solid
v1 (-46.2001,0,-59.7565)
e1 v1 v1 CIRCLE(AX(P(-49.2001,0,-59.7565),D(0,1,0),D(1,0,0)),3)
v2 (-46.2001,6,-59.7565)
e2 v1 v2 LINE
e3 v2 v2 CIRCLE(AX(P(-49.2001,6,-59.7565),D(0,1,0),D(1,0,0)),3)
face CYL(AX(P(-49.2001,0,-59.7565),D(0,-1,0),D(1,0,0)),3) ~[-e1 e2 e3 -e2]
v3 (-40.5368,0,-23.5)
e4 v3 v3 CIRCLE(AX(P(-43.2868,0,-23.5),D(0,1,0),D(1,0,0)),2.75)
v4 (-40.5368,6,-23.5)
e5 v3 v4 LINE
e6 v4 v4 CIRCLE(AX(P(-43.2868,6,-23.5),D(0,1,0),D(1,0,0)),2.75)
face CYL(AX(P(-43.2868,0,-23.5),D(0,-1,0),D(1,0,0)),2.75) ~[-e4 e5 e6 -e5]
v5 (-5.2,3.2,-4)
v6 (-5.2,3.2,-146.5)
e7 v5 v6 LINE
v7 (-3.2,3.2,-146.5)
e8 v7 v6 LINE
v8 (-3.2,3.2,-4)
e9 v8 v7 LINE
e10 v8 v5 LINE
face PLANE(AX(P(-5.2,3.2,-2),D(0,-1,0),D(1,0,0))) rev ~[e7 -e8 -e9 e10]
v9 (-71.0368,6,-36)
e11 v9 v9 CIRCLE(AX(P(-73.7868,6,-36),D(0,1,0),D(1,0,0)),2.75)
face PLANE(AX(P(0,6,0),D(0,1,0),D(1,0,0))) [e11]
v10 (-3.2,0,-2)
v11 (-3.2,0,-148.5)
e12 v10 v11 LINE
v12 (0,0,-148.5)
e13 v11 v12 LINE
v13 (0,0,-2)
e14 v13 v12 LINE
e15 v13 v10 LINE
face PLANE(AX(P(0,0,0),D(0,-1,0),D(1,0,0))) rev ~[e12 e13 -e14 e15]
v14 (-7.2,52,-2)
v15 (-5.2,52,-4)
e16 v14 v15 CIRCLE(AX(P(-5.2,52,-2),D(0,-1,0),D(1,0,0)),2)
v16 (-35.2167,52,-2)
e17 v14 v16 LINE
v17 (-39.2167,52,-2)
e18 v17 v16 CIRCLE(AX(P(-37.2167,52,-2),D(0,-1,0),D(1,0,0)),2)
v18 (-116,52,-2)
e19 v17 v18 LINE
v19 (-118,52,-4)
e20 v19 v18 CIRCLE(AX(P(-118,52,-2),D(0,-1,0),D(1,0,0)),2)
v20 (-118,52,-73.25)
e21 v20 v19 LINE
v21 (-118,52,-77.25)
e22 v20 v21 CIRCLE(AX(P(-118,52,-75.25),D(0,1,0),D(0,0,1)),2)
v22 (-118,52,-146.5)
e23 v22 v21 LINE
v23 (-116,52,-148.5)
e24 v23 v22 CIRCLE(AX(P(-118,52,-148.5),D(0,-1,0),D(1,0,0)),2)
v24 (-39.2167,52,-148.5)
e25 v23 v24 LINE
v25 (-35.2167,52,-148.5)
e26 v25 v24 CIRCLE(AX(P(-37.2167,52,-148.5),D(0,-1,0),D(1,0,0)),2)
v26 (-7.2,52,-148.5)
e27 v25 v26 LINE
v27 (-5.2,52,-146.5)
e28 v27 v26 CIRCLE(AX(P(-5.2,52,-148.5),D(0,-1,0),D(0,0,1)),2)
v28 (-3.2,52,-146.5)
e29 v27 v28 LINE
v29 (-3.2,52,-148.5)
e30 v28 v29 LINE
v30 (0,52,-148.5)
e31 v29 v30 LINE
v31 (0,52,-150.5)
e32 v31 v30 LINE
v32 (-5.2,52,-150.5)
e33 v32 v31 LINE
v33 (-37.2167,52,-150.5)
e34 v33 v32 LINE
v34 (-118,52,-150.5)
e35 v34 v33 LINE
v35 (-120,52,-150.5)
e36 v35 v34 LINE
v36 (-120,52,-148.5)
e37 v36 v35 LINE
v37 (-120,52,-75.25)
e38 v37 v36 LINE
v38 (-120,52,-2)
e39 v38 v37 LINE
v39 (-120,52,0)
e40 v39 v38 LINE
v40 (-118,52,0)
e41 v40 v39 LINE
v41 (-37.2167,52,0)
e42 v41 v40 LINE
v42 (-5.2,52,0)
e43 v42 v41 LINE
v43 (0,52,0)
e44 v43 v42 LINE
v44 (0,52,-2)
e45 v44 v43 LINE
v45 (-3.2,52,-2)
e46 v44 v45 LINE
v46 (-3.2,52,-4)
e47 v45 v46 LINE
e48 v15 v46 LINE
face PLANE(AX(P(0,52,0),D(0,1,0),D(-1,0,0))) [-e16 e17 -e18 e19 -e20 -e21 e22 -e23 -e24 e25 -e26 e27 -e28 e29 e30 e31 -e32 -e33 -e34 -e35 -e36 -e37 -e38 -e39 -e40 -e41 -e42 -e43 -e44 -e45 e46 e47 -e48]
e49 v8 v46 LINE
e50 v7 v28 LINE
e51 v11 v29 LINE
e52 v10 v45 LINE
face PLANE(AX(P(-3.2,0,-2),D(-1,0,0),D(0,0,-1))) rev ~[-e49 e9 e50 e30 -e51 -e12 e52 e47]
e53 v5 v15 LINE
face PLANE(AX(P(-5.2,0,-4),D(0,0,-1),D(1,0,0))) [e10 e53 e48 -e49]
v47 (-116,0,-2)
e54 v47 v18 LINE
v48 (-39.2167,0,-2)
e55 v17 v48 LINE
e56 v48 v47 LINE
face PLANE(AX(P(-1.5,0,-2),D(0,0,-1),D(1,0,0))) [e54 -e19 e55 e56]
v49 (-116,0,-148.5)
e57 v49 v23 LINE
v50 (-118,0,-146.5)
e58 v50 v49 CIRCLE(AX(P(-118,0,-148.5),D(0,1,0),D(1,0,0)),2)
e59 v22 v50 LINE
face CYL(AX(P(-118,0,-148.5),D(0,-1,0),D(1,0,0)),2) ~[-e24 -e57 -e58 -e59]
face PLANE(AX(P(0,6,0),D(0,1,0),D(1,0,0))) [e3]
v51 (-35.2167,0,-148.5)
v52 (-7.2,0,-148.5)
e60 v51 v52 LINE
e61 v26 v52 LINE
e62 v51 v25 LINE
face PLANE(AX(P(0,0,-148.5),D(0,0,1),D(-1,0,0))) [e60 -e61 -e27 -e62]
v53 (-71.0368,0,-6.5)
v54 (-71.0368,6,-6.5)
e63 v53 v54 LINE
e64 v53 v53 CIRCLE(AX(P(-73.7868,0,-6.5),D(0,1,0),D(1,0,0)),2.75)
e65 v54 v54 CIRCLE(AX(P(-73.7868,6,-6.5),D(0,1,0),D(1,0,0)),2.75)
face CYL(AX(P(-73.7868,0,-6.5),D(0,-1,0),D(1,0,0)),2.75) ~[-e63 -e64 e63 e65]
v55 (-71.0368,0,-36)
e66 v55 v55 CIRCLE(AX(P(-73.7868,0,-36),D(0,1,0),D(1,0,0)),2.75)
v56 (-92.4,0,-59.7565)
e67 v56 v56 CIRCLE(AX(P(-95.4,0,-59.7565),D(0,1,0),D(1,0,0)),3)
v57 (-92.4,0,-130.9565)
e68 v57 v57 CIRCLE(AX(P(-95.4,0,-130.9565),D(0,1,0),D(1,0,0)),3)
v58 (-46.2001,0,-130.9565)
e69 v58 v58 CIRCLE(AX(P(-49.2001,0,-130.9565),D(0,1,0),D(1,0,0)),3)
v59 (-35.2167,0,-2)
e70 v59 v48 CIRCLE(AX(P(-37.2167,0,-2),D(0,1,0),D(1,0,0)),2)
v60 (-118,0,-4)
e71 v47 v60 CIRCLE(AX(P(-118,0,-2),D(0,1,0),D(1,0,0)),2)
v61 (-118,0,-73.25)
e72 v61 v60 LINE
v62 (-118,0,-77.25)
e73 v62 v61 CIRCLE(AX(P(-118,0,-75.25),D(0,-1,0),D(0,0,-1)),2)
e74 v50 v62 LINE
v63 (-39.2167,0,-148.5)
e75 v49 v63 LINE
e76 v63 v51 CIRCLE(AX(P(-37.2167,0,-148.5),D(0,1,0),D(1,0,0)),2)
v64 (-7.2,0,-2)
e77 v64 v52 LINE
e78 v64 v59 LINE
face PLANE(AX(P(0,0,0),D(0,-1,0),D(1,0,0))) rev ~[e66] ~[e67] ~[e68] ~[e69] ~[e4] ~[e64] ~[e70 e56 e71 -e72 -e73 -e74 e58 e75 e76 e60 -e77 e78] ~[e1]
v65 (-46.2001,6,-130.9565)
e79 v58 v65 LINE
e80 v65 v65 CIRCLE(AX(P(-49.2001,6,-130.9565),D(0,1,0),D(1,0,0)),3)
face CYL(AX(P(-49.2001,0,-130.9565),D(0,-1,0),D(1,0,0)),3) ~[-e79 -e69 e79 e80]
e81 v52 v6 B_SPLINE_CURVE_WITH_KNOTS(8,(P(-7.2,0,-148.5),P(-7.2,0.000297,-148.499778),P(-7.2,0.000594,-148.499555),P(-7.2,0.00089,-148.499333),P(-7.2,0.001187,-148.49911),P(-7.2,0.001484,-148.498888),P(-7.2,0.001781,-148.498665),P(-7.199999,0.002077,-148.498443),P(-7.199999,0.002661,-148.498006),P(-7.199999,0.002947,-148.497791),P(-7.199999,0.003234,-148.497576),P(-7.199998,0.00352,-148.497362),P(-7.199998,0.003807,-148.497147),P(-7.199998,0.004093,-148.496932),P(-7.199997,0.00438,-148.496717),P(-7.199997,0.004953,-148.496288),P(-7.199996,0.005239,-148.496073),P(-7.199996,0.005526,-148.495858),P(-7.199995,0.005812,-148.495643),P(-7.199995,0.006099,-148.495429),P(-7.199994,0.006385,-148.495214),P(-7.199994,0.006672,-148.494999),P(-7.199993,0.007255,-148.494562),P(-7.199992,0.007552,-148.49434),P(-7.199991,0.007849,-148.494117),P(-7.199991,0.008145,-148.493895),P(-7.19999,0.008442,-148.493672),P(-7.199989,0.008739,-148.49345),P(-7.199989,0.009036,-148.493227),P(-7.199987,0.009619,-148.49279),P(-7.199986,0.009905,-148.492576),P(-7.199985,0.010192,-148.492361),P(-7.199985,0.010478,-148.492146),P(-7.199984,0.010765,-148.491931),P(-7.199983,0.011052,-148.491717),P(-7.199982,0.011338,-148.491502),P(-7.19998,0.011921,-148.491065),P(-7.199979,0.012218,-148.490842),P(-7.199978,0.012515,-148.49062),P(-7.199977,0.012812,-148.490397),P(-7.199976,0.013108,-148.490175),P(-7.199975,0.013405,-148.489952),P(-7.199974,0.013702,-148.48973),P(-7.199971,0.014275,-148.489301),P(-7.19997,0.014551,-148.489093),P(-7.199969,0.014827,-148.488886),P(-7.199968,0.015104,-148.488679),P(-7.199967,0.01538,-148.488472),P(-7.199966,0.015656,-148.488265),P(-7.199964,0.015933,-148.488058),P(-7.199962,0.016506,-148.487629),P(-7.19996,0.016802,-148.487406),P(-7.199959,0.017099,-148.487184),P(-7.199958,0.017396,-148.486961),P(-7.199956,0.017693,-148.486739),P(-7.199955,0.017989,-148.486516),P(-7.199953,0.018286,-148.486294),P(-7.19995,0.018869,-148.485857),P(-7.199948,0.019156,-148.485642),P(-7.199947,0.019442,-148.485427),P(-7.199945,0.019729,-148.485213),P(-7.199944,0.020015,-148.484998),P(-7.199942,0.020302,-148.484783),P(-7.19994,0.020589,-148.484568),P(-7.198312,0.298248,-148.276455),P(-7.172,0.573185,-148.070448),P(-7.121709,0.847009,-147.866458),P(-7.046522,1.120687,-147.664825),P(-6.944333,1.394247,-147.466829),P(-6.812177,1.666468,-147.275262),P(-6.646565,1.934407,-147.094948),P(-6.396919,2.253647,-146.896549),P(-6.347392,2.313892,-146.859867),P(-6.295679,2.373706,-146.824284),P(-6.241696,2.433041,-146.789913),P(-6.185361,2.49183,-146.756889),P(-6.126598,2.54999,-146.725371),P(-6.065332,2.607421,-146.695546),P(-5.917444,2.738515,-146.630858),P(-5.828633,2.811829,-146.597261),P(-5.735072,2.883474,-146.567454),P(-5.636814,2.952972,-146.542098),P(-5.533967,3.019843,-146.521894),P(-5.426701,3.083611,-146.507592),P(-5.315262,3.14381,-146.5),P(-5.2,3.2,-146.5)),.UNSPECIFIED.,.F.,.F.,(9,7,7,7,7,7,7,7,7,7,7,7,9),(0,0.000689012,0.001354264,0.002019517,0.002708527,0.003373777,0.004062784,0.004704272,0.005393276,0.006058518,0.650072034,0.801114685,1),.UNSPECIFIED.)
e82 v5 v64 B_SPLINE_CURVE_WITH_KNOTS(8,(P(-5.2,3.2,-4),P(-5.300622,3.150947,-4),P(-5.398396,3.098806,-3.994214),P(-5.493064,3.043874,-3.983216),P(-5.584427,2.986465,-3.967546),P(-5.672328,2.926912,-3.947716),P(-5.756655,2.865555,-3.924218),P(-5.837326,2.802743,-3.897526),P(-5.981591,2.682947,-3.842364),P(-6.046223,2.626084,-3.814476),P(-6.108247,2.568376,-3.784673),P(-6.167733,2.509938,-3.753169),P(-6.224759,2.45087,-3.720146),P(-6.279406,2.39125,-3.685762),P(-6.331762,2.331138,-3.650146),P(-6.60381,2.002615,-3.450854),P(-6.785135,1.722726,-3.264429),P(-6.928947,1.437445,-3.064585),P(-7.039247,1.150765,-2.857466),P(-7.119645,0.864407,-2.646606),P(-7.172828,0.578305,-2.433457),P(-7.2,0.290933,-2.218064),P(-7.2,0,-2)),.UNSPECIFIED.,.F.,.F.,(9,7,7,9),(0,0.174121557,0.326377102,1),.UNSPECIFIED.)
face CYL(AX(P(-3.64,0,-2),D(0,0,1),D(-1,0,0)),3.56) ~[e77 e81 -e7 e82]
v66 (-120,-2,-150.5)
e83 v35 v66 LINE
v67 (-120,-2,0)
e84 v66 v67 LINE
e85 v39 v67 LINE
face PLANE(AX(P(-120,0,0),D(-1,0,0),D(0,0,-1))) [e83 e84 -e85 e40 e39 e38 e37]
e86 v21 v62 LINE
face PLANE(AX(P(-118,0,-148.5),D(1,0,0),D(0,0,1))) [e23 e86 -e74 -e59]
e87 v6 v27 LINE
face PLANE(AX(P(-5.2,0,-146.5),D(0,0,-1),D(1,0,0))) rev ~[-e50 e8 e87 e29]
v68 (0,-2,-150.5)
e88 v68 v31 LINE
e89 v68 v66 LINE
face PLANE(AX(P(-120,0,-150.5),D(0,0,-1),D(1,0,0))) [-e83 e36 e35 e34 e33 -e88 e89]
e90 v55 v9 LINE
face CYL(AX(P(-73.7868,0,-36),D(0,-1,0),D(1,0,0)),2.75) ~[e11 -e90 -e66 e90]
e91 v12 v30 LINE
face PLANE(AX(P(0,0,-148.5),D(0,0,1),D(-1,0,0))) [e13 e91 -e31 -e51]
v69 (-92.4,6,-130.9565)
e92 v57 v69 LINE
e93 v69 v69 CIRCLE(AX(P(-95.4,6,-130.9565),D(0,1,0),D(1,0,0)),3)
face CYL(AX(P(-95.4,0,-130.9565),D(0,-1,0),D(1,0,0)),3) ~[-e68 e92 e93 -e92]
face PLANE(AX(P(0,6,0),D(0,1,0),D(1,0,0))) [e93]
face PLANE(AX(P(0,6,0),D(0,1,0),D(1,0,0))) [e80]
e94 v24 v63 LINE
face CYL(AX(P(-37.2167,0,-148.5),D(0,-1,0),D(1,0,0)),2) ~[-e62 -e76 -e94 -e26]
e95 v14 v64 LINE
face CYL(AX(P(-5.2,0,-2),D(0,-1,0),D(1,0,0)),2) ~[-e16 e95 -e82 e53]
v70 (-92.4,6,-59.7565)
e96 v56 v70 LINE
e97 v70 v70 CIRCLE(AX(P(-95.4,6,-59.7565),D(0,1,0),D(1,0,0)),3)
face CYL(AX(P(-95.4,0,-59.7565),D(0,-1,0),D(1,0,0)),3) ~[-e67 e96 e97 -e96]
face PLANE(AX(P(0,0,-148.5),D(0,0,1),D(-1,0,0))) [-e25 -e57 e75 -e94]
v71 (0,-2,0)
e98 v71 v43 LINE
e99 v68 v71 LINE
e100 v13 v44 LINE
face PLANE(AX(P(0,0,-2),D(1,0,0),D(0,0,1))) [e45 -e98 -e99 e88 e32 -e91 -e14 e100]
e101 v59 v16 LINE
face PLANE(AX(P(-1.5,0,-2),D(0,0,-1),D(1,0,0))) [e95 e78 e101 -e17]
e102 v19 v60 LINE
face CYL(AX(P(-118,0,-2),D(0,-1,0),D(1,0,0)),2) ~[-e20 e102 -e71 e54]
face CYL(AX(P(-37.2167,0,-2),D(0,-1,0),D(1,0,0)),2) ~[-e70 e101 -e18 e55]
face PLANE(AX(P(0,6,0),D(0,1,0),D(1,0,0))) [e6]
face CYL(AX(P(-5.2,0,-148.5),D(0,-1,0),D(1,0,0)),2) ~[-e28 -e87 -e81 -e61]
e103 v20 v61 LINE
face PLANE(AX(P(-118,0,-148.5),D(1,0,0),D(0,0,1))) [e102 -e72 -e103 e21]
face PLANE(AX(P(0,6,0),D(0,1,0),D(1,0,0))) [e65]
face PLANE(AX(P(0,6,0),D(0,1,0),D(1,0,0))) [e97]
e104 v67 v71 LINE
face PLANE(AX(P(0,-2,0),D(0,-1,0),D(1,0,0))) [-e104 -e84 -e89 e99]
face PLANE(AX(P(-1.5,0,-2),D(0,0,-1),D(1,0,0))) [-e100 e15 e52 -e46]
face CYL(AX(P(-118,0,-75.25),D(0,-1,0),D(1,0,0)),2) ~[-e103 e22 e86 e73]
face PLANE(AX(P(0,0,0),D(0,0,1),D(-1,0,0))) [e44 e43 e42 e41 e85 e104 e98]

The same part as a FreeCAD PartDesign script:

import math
import FreeCAD as App
import Part
import Sketcher
from FreeCAD import Vector
Q = App.Units.Quantity


def add_polygon(sketch, points):
    """Adds a closed chain of lines whose ends are joined by coincident constraints."""
    first, n = sketch.GeometryCount, len(points)
    for a, b in zip(points, points[1:] + points[:1]):
        sketch.addGeometry(Part.LineSegment(App.Vector(*a, 0), App.Vector(*b, 0)), False)
    for i in range(n):
        sketch.addConstraint(Sketcher.Constraint("Coincident", first + i, 2, first + (i + 1) % n, 1))

doc = App.newDocument("Part")
body = doc.addObject("PartDesign::Body", "Body")

# Sketch on XZ plane
sketch1 = body.newObject("Sketcher::SketchObject", "Sketch")
sketch1.AttachmentSupport = (doc.getObject("XZ_Plane"), [""])
sketch1.MapMode = "FlatFace"
add_polygon(sketch1, [(-120, 0), (0, 0), (0, -2), (-118, -2), (-118, -148.5), (0, -148.5), (0, -150.5), (-120, -150.5)])  # lines 0-7
sketch1.addConstraint([
    Sketcher.Constraint("Horizontal", 0),
    Sketcher.Constraint("Vertical", 1),
    Sketcher.Constraint("Horizontal", 2),
    Sketcher.Constraint("Vertical", 3),
    Sketcher.Constraint("Horizontal", 4),
    Sketcher.Constraint("Vertical", 5),
    Sketcher.Constraint("Horizontal", 6),
    Sketcher.Constraint("Vertical", 7),
    Sketcher.Constraint("Coincident", 0, 2, -1, 1),
    Sketcher.Constraint("PointOnObject", 4, 2, -2),
    Sketcher.Constraint("Equal", 1, 5),
    Sketcher.Constraint("DistanceX", 0, 1, 0, 2, Q("120 mm")),
    Sketcher.Constraint("DistanceY", 1, 2, 1, 1, Q("2 mm")),
    Sketcher.Constraint("DistanceY", 7, 1, 7, 2, Q("150.5 mm")),
    Sketcher.Constraint("DistanceX", 6, 2, 3, 2, Q("2 mm")),
])
pad1 = body.newObject("PartDesign::Pad", "Pad")
pad1.Profile = sketch1
pad1.Length = 52
pad1.Reversed = True

# Sketch on XZ plane
sketch2 = body.newObject("Sketcher::SketchObject", "Sketch001")
sketch2.AttachmentSupport = (doc.getObject("XZ_Plane"), [""])
sketch2.MapMode = "FlatFace"
add_polygon(sketch2, [(-120, 0), (-120, -150.5), (0, -150.5), (0, 0)])  # lines 0-3
sketch2.addConstraint([
    Sketcher.Constraint("Vertical", 0),
    Sketcher.Constraint("Horizontal", 1),
    Sketcher.Constraint("Vertical", 2),
    Sketcher.Constraint("Horizontal", 3),
    Sketcher.Constraint("Coincident", 2, 2, -1, 1),
    Sketcher.Constraint("DistanceX", 1, 1, 1, 2, Q("120 mm")),
    Sketcher.Constraint("DistanceY", 0, 2, 0, 1, Q("150.5 mm")),
])
pad2 = body.newObject("PartDesign::Pad", "Pad001")
pad2.Profile = sketch2
pad2.Length = 2

# Sketch on XZ plane
sketch3 = body.newObject("Sketcher::SketchObject", "Sketch002")
sketch3.AttachmentSupport = (doc.getObject("XZ_Plane"), [""])
sketch3.MapMode = "FlatFace"
sketch3.addGeometry([
    Part.LineSegment(Vector(-3.2, -2, 0), Vector(-3.2, -4, 0)),  # 0
    Part.LineSegment(Vector(-3.2, -4, 0), Vector(-5.2, -4, 0)),  # 1
    Part.ArcOfCircle(Part.Circle(Vector(-5.2, -2, 0), Vector(0, 0, 1), 2), math.radians(0), math.radians(270)),  # 2
    Part.LineSegment(Vector(-5.2, -146.5, 0), Vector(-3.2, -146.5, 0)),  # 3
    Part.LineSegment(Vector(-3.2, -146.5, 0), Vector(-3.2, -148.5, 0)),  # 4
    Part.ArcOfCircle(Part.Circle(Vector(-5.2, -148.5, 0), Vector(0, 0, 1), 2), math.radians(90), math.radians(360)),  # 5
    Part.Circle(Vector(-37.2167, -2, 0), Vector(0, 0, 1), 2),  # 6
    Part.Circle(Vector(-118, -2, 0), Vector(0, 0, 1), 2),  # 7
    Part.Circle(Vector(-37.2167, -148.5, 0), Vector(0, 0, 1), 2),  # 8
    Part.Circle(Vector(-118, -148.5, 0), Vector(0, 0, 1), 2),  # 9
    Part.Circle(Vector(-118, -75.25, 0), Vector(0, 0, 1), 2),  # 10
], False)
sketch3.addConstraint([
    Sketcher.Constraint("Coincident", 0, 2, 1, 1),
    Sketcher.Constraint("Tangent", 1, 2, 2, 2),
    Sketcher.Constraint("Tangent", 2, 1, 0, 1),
    Sketcher.Constraint("Coincident", 3, 2, 4, 1),
    Sketcher.Constraint("Tangent", 4, 2, 5, 2),
    Sketcher.Constraint("Tangent", 5, 1, 3, 1),
    Sketcher.Constraint("Vertical", 0),
    Sketcher.Constraint("Horizontal", 1),
    Sketcher.Constraint("Horizontal", 3),
    Sketcher.Constraint("Vertical", 4),
    Sketcher.Constraint("Equal", 2, 5),
    Sketcher.Constraint("Equal", 5, 6),
    Sketcher.Constraint("Equal", 6, 7),
    Sketcher.Constraint("Equal", 7, 8),
    Sketcher.Constraint("Equal", 8, 9),
    Sketcher.Constraint("Equal", 9, 10),
    Sketcher.Constraint("Horizontal", 2, 3, 6, 3),
    Sketcher.Constraint("Horizontal", 6, 3, 7, 3),
    Sketcher.Constraint("Horizontal", 5, 3, 8, 3),
    Sketcher.Constraint("Horizontal", 8, 3, 9, 3),
    Sketcher.Constraint("Vertical", 2, 3, 5, 3),
    Sketcher.Constraint("Vertical", 6, 3, 8, 3),
    Sketcher.Constraint("Vertical", 7, 3, 9, 3),
    Sketcher.Constraint("Vertical", 9, 3, 10, 3),
    Sketcher.Constraint("Diameter", 6, Q("4 mm")),
    Sketcher.Constraint("DistanceX", 0, 2, -1, 1, Q("3.2 mm")),
    Sketcher.Constraint("DistanceY", 2, 3, -1, 1, Q("2 mm")),
    Sketcher.Constraint("DistanceX", 7, 3, -1, 1, Q("118 mm")),
    Sketcher.Constraint("DistanceY", 5, 3, -1, 1, Q("148.5 mm")),
    Sketcher.Constraint("DistanceY", 10, 3, -1, 1, Q("75.25 mm")),
    Sketcher.Constraint("DistanceX", 6, 3, -1, 1, Q("37.2167 mm")),
])
pad3 = body.newObject("PartDesign::Pad", "Pad002")
pad3.Profile = sketch3
pad3.Length = 52
pad3.Reversed = True

# Sketch on XY plane
sketch4 = body.newObject("Sketcher::SketchObject", "Sketch003")
sketch4.AttachmentSupport = (doc.getObject("XY_Plane"), [""])
sketch4.MapMode = "FlatFace"
sketch4.AttachmentOffset = App.Placement(Vector(0, 0, -2), App.Rotation())
sketch4.addGeometry([
    Part.ArcOfCircle(Part.Circle(Vector(-3.64, 0, 0), Vector(0, 0, 1), 3.56), math.radians(115.989234), math.radians(180)),
    Part.LineSegment(Vector(-5.2, 3.2, 0), Vector(-3.2, 3.2, 0)),
    Part.LineSegment(Vector(-3.2, 3.2, 0), Vector(-3.2, 0, 0)),
    Part.LineSegment(Vector(-3.2, 0, 0), Vector(-7.2, 0, 0)),
], False)
sketch4.addConstraint([
    Sketcher.Constraint("Coincident", 0, 1, 1, 1),
    Sketcher.Constraint("Coincident", 1, 2, 2, 1),
    Sketcher.Constraint("Coincident", 2, 2, 3, 1),
    Sketcher.Constraint("Coincident", 3, 2, 0, 2),
    Sketcher.Constraint("Horizontal", 1),
    Sketcher.Constraint("Vertical", 2),
    Sketcher.Constraint("Horizontal", 3),
    Sketcher.Constraint("PointOnObject", 0, 3, -1),
    Sketcher.Constraint("PointOnObject", 2, 2, -1),
    Sketcher.Constraint("DistanceY", 2, 2, 2, 1, Q("3.2 mm")),
    Sketcher.Constraint("DistanceX", 1, 2, -1, 1, Q("3.2 mm")),
    Sketcher.Constraint("DistanceX", 1, 1, 1, 2, Q("2 mm")),
    Sketcher.Constraint("DistanceX", 3, 2, 3, 1, Q("4 mm")),
])
pad4 = body.newObject("PartDesign::Pad", "Pad003")
pad4.Profile = sketch4
pad4.Type = "UpToLast"
pad4.Reversed = True

# Sketch on XZ plane
sketch5 = body.newObject("Sketcher::SketchObject", "Sketch004")
sketch5.AttachmentSupport = (doc.getObject("XZ_Plane"), [""])
sketch5.MapMode = "FlatFace"
sketch5.addGeometry([
    Part.Circle(Vector(-73.7868, -6.5, 0), Vector(0, 0, 1), 2.75),
    Part.Circle(Vector(-73.7868, -36, 0), Vector(0, 0, 1), 2.75),
    Part.Circle(Vector(-43.2868, -23.5, 0), Vector(0, 0, 1), 2.75),
], False)
sketch5.addConstraint([
    Sketcher.Constraint("Equal", 0, 1),
    Sketcher.Constraint("Equal", 1, 2),
    Sketcher.Constraint("Vertical", 0, 3, 1, 3),
    Sketcher.Constraint("Diameter", 0, Q("5.5 mm")),
    Sketcher.Constraint("DistanceY", 1, 3, 0, 3, Q("29.5 mm")),
    Sketcher.Constraint("DistanceX", 1, 3, 2, 3, Q("30.5 mm")),
    Sketcher.Constraint("DistanceY", 1, 3, 2, 3, Q("12.5 mm")),
    Sketcher.Constraint("DistanceY", 1, 3, -1, 1, Q("36 mm")),
    Sketcher.Constraint("DistanceX", 0, 3, -1, 1, Q("73.7868 mm")),
])
pad5 = body.newObject("PartDesign::Pad", "Pad004")
pad5.Profile = sketch5
pad5.Length = 6
pad5.Reversed = True

# Sketch on XZ plane
sketch6 = body.newObject("Sketcher::SketchObject", "Sketch005")
sketch6.AttachmentSupport = (doc.getObject("XZ_Plane"), [""])
sketch6.MapMode = "FlatFace"
sketch6.addGeometry([
    Part.Circle(Vector(-49.2001, -130.9565, 0), Vector(0, 0, 1), 3),
    Part.Circle(Vector(-49.2001, -59.7565, 0), Vector(0, 0, 1), 3),
    Part.Circle(Vector(-95.4, -59.7565, 0), Vector(0, 0, 1), 3),
    Part.Circle(Vector(-95.4, -130.9565, 0), Vector(0, 0, 1), 3),
], False)
sketch6.addConstraint([
    Sketcher.Constraint("Equal", 0, 1),
    Sketcher.Constraint("Equal", 1, 2),
    Sketcher.Constraint("Equal", 2, 3),
    Sketcher.Constraint("Horizontal", 1, 3, 2, 3),
    Sketcher.Constraint("Horizontal", 0, 3, 3, 3),
    Sketcher.Constraint("Vertical", 0, 3, 1, 3),
    Sketcher.Constraint("Vertical", 2, 3, 3, 3),
    Sketcher.Constraint("Diameter", 0, Q("6 mm")),
    Sketcher.Constraint("DistanceY", 0, 3, 1, 3, Q("71.2 mm")),
    Sketcher.Constraint("DistanceX", 2, 3, 1, 3, Q("46.2 mm")),
    Sketcher.Constraint("DistanceX", 0, 3, -1, 1, Q("49.2 mm")),
    Sketcher.Constraint("DistanceY", 0, 3, -1, 1, Q("130.9565 mm")),
])
pad6 = body.newObject("PartDesign::Pad", "Pad005")
pad6.Profile = sketch6
pad6.Length = 6
pad6.Reversed = True

doc.recompute()
